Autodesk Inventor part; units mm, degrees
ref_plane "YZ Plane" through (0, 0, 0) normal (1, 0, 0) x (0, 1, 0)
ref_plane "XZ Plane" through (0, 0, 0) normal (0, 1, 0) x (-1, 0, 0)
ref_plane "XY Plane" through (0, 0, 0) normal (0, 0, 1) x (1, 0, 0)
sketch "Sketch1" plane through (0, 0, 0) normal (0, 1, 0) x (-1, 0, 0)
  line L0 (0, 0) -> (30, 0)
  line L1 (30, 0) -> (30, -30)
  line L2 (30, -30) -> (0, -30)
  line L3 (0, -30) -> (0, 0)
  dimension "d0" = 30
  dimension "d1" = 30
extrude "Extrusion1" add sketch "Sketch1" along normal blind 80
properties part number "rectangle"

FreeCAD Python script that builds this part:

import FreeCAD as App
import Part
import Sketcher
Q = App.Units.Quantity

doc = App.newDocument("Part")
body = doc.addObject("PartDesign::Body", "Body")

sketch1 = body.newObject("Sketcher::SketchObject", "Sketch")
sketch1.AttachmentSupport = (doc.getObject("XZ_Plane"), [""])
sketch1.MapMode = "FlatFace"
sketch1.addGeometry([
    Part.LineSegment(App.Vector(-30, 0, 0), App.Vector(0, 0, 0)),
    Part.LineSegment(App.Vector(0, 0, 0), App.Vector(0, -30, 0)),
    Part.LineSegment(App.Vector(0, -30, 0), App.Vector(-30, -30, 0)),
    Part.LineSegment(App.Vector(-30, -30, 0), App.Vector(-30, 0, 0)),
], False)
sketch1.addConstraint([
    Sketcher.Constraint("Coincident", 0, 2, 1, 1),
    Sketcher.Constraint("Coincident", 1, 2, 2, 1),
    Sketcher.Constraint("Coincident", 2, 2, 3, 1),
    Sketcher.Constraint("Coincident", 3, 2, 0, 1),
    Sketcher.Constraint("Horizontal", 0),
    Sketcher.Constraint("Vertical", 1),
    Sketcher.Constraint("Horizontal", 2),
    Sketcher.Constraint("Vertical", 3),
    Sketcher.Constraint("Coincident", 0, 2, -1, 1),
    Sketcher.Constraint("Equal", 2, 1),
    Sketcher.Constraint("DistanceX", 0, 1, 0, 2, Q("30 mm")),
])
pad1 = body.newObject("PartDesign::Pad", "Pad")
pad1.Profile = sketch1
pad1.Length = 80
pad1.Reversed = True

doc.recompute()
